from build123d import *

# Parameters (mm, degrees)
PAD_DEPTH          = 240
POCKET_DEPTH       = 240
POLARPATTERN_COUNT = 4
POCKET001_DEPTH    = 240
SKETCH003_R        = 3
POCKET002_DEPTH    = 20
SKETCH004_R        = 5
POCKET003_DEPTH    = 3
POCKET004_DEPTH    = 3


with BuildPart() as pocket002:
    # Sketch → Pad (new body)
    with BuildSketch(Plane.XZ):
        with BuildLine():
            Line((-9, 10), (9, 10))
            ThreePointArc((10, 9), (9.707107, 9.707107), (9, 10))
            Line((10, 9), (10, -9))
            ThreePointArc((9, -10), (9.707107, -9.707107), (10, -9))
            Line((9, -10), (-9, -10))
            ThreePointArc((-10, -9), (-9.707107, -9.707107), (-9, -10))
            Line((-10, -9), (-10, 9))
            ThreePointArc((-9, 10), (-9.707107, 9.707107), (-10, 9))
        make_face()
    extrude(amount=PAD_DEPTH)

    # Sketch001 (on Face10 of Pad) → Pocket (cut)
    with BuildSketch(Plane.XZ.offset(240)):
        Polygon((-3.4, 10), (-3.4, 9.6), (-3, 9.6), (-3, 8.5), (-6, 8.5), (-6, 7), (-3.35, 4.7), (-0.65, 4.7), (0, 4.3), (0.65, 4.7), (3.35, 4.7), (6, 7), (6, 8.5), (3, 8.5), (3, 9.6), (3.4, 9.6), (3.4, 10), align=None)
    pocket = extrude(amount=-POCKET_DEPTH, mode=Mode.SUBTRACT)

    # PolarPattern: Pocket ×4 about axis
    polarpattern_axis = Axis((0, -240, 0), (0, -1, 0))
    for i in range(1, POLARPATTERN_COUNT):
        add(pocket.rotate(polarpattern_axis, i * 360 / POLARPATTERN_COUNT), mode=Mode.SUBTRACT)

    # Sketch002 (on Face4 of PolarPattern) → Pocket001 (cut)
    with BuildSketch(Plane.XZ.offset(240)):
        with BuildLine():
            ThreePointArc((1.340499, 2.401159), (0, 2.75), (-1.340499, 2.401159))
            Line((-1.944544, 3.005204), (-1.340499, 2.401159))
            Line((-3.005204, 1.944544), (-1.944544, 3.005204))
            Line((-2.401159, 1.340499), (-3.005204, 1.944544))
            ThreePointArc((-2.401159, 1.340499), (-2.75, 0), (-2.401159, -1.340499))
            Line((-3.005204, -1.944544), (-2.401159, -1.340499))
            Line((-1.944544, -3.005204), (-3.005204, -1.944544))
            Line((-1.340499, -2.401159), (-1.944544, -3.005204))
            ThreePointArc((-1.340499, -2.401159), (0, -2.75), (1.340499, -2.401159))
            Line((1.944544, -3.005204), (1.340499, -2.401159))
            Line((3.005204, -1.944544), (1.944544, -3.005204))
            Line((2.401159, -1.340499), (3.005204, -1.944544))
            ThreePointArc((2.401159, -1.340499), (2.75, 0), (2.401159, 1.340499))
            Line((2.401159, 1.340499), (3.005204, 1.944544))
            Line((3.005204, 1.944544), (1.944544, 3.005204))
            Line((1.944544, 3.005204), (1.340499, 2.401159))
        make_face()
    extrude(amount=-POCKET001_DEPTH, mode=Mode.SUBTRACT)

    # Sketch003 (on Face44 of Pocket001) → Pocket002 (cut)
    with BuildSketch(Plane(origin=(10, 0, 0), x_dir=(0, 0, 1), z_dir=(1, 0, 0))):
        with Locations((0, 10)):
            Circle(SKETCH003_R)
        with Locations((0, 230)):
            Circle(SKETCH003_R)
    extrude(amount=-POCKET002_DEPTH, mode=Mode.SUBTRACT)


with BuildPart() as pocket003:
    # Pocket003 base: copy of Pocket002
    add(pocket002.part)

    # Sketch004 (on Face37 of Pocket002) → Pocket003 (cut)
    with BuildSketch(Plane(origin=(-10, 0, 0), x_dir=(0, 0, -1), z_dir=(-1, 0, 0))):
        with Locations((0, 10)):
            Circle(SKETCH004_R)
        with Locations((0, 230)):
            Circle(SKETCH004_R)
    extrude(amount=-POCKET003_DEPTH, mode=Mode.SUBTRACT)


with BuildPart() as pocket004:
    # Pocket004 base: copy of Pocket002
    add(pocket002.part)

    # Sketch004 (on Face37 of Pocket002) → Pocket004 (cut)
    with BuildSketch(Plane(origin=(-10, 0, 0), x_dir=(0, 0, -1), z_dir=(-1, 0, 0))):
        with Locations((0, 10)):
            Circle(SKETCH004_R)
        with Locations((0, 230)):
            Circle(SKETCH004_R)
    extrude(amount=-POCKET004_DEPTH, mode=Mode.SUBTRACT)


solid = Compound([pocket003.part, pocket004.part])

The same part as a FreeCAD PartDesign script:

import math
import FreeCAD as App
import Part
import Sketcher
from FreeCAD import Vector
Q = App.Units.Quantity

doc = App.newDocument("Part")
params = doc.addObject("Spreadsheet::Sheet", "Params")
for row, (alias, value) in enumerate([
    ("sketch1_radius", "0.999999 mm"),
    ("sketch1_width", "18 mm"),
    ("pad1_length", "240 mm"),
    ("sketch2_width", "3 mm"),
    ("sketch2_width2", "0.4 mm"),
    ("sketch2_width3", "2.7 mm"),
    ("sketch2_width4", "6.8 mm"),
    ("sketch2_height", "1.1 mm"),
    ("pocket1_length", "240 mm"),
    ("sketch3_length", "1.5 mm"),
    ("pocket2_length", "240 mm"),
    ("sketch4_diameter", "6 mm"),
    ("pocket3_length", "20 mm"),
    ("sketch5_diameter", "10 mm"),
    ("pocket4_length", "3 mm"),
    ("sketch6_diameter", "10 mm"),
    ("pocket5_length", "3 mm"),
], start=1):
    params.set(f"A{row}", alias)
    params.set(f"B{row}", "=" + value)
    params.setAlias(f"B{row}", alias)

body = doc.addObject("PartDesign::Body", "Body")

sketch1 = body.newObject("Sketcher::SketchObject", "Sketch")
sketch1.AttachmentSupport = (doc.getObject("XZ_Plane"), [""])
sketch1.MapMode = "FlatFace"
sketch1.addGeometry([
    Part.LineSegment(Vector(9, 10, 0), Vector(-9, 10, 0)),
    Part.ArcOfCircle(Part.Circle(Vector(-9.000001, 9.000001, 0), Vector(0, 0, 1), 0.999999), math.radians(89.999957), math.radians(180.000043)),
    Part.LineSegment(Vector(-10, 9, 0), Vector(-10, -9, 0)),
    Part.ArcOfCircle(Part.Circle(Vector(-9.000001, -9.000001, 0), Vector(0, 0, 1), 0.999999), math.radians(179.999957), math.radians(270.000043)),
    Part.LineSegment(Vector(-9, -10, 0), Vector(9, -10, 0)),
    Part.ArcOfCircle(Part.Circle(Vector(9.000001, -9.000001, 0), Vector(0, 0, 1), 0.999999), math.radians(-90.000043), math.radians(0.000043)),
    Part.LineSegment(Vector(10, -9, 0), Vector(10, 9, 0)),
    Part.ArcOfCircle(Part.Circle(Vector(9.000001, 9.000001, 0), Vector(0, 0, 1), 0.999999), math.radians(-0.000043), math.radians(90.000043)),
], False)
sketch1.addConstraint([
    Sketcher.Constraint("Tangent", 0, 2, 1, 1),
    Sketcher.Constraint("Tangent", 1, 2, 2, 1),
    Sketcher.Constraint("Tangent", 2, 2, 3, 1),
    Sketcher.Constraint("Tangent", 3, 2, 4, 1),
    Sketcher.Constraint("Tangent", 4, 2, 5, 1),
    Sketcher.Constraint("Tangent", 5, 2, 6, 1),
    Sketcher.Constraint("Tangent", 6, 2, 7, 1),
    Sketcher.Constraint("Tangent", 7, 2, 0, 1),
    Sketcher.Constraint("Horizontal", 0),
    Sketcher.Constraint("Vertical", 2),
    Sketcher.Constraint("Horizontal", 4),
    Sketcher.Constraint("Vertical", 6),
    Sketcher.Constraint("Equal", 1, 3),
    Sketcher.Constraint("Equal", 3, 5),
    Sketcher.Constraint("Equal", 5, 7),
    Sketcher.Constraint("Symmetric", 1, 3, 5, 3, -1, 1),
    Sketcher.Constraint("Equal", 4, 2),
    Sketcher.Constraint("Radius", 1, Q("0.999999 mm")),
    Sketcher.Constraint("DistanceX", 0, 2, 0, 1, Q("18 mm")),
])
sketch1.setExpression("Constraints[17]", "Params.sketch1_radius")
sketch1.setExpression("Constraints[18]", "Params.sketch1_width")
pad1 = body.newObject("PartDesign::Pad", "Pad")
pad1.Profile = sketch1
pad1.setExpression("Length", "Params.pad1_length")

sketch2 = body.newObject("Sketcher::SketchObject", "Sketch001")
sketch2.AttachmentSupport = (doc.getObject("XZ_Plane"), [""])
sketch2.MapMode = "FlatFace"
sketch2.AttachmentOffset = App.Placement(Vector(0, 0, 240), App.Rotation())
sketch2.addGeometry([
    Part.LineSegment(Vector(-3.4, 10, 0), Vector(-3.4, 9.6, 0)),
    Part.LineSegment(Vector(-3.4, 9.6, 0), Vector(-3, 9.6, 0)),
    Part.LineSegment(Vector(-3, 9.6, 0), Vector(-3, 8.5, 0)),
    Part.LineSegment(Vector(-3, 8.5, 0), Vector(-6, 8.5, 0)),
    Part.LineSegment(Vector(-6, 8.5, 0), Vector(-6, 7, 0)),
    Part.LineSegment(Vector(-6, 7, 0), Vector(-3.35, 4.7, 0)),
    Part.LineSegment(Vector(-3.35, 4.7, 0), Vector(-0.65, 4.7, 0)),
    Part.LineSegment(Vector(-0.65, 4.7, 0), Vector(0, 4.3, 0)),
    Part.LineSegment(Vector(0, 4.3, 0), Vector(0.65, 4.7, 0)),
    Part.LineSegment(Vector(0.65, 4.7, 0), Vector(3.35, 4.7, 0)),
    Part.LineSegment(Vector(3.35, 4.7, 0), Vector(6, 7, 0)),
    Part.LineSegment(Vector(6, 7, 0), Vector(6, 8.5, 0)),
    Part.LineSegment(Vector(6, 8.5, 0), Vector(3, 8.5, 0)),
    Part.LineSegment(Vector(3, 8.5, 0), Vector(3, 9.6, 0)),
    Part.LineSegment(Vector(3, 9.6, 0), Vector(3.4, 9.6, 0)),
    Part.LineSegment(Vector(3.4, 9.6, 0), Vector(3.4, 10, 0)),
    Part.LineSegment(Vector(3.4, 10, 0), Vector(-3.4, 10, 0)),
], False)
sketch2.addConstraint([
    Sketcher.Constraint("Coincident", 0, 2, 1, 1),
    Sketcher.Constraint("Coincident", 1, 2, 2, 1),
    Sketcher.Constraint("Coincident", 2, 2, 3, 1),
    Sketcher.Constraint("Coincident", 3, 2, 4, 1),
    Sketcher.Constraint("Coincident", 4, 2, 5, 1),
    Sketcher.Constraint("Coincident", 5, 2, 6, 1),
    Sketcher.Constraint("Coincident", 6, 2, 7, 1),
    Sketcher.Constraint("Coincident", 7, 2, 8, 1),
    Sketcher.Constraint("Coincident", 8, 2, 9, 1),
    Sketcher.Constraint("Coincident", 9, 2, 10, 1),
    Sketcher.Constraint("Coincident", 10, 2, 11, 1),
    Sketcher.Constraint("Coincident", 11, 2, 12, 1),
    Sketcher.Constraint("Coincident", 12, 2, 13, 1),
    Sketcher.Constraint("Coincident", 13, 2, 14, 1),
    Sketcher.Constraint("Coincident", 14, 2, 15, 1),
    Sketcher.Constraint("Coincident", 15, 2, 16, 1),
    Sketcher.Constraint("Coincident", 16, 2, 0, 1),
    Sketcher.Constraint("Vertical", 0),
    Sketcher.Constraint("Horizontal", 1),
    Sketcher.Constraint("Vertical", 2),
    Sketcher.Constraint("Horizontal", 3),
    Sketcher.Constraint("Vertical", 4),
    Sketcher.Constraint("Horizontal", 6),
    Sketcher.Constraint("Horizontal", 9),
    Sketcher.Constraint("Vertical", 11),
    Sketcher.Constraint("Horizontal", 12),
    Sketcher.Constraint("Vertical", 13),
    Sketcher.Constraint("Horizontal", 14),
    Sketcher.Constraint("Vertical", 15),
    Sketcher.Constraint("Horizontal", 16),
    Sketcher.Constraint("Symmetric", 6, 2, 8, 2, -2),
    Sketcher.Constraint("Symmetric", 4, 2, 10, 2, -2),
    Sketcher.Constraint("Symmetric", 2, 2, 12, 2, -2),
    Sketcher.Constraint("Symmetric", 0, 2, 14, 2, -2),
    Sketcher.Constraint("PointOnObject", 7, 2, -2),
    Sketcher.Constraint("Equal", 6, 9),
    Sketcher.Constraint("Equal", 14, 0),
    Sketcher.Constraint("DistanceX", 3, 2, 3, 1, Q("3 mm")),
    Sketcher.Constraint("DistanceX", 1, 1, 1, 2, Q("0.4 mm")),
    Sketcher.Constraint("DistanceX", 6, 1, 6, 2, Q("2.7 mm")),
    Sketcher.Constraint("DistanceX", 16, 2, 16, 1, Q("6.8 mm")),
    Sketcher.Constraint("DistanceY", 2, 2, 2, 1, Q("1.1 mm")),
    Sketcher.Constraint("DistanceY", 4, 2, 4, 1, Q("1.5 mm")),
    Sketcher.Constraint("DistanceY", -1, 1, 4, 2, Q("7 mm")),
    Sketcher.Constraint("DistanceX", 5, 2, 8, 2, Q("4 mm")),
    Sketcher.Constraint("DistanceY", -1, 1, 5, 2, Q("4.7 mm")),
    Sketcher.Constraint("DistanceY", -1, 1, 7, 2, Q("4.3 mm")),
])
sketch2.setExpression("Constraints[37]", "Params.sketch2_width")
sketch2.setExpression("Constraints[38]", "Params.sketch2_width2")
sketch2.setExpression("Constraints[39]", "Params.sketch2_width3")
sketch2.setExpression("Constraints[40]", "Params.sketch2_width4")
sketch2.setExpression("Constraints[41]", "Params.sketch2_height")
pocket1 = body.newObject("PartDesign::Pocket", "Pocket")
pocket1.Profile = sketch2
pocket1.setExpression("Length", "Params.pocket1_length")
doc.recompute()

polarpattern = body.newObject("PartDesign::PolarPattern", "PolarPattern")
polarpattern.Originals = [pocket1]
polarpattern.Axis = (doc.getObject("Y_Axis"), [""])
polarpattern.Angle = 360
polarpattern.Occurrences = 4
body.Tip = polarpattern

sketch3 = body.newObject("Sketcher::SketchObject", "Sketch002")
sketch3.AttachmentSupport = (doc.getObject("XZ_Plane"), [""])
sketch3.MapMode = "FlatFace"
sketch3.AttachmentOffset = App.Placement(Vector(0, 0, 240), App.Rotation())
sketch3.addGeometry([
    Part.ArcOfCircle(Part.Circle(Vector(0, -0.000003, 0), Vector(0, 0, 1), 2.750003), math.radians(60.826646), math.radians(119.173354)),
    Part.LineSegment(Vector(-1.340499, 2.401159, 0), Vector(-1.944544, 3.005204, 0)),
    Part.LineSegment(Vector(-1.944544, 3.005204, 0), Vector(-3.005204, 1.944544, 0)),
    Part.LineSegment(Vector(-3.005204, 1.944544, 0), Vector(-2.401159, 1.340499, 0)),
    Part.ArcOfCircle(Part.Circle(Vector(0.000003, 0, 0), Vector(0, 0, 1), 2.750003), math.radians(150.826646), math.radians(209.173354)),
    Part.LineSegment(Vector(-2.401159, -1.340499, 0), Vector(-3.005204, -1.944544, 0)),
    Part.LineSegment(Vector(-3.005204, -1.944544, 0), Vector(-1.944544, -3.005204, 0)),
    Part.LineSegment(Vector(-1.944544, -3.005204, 0), Vector(-1.340499, -2.401159, 0)),
    Part.ArcOfCircle(Part.Circle(Vector(0, 0.000003, 0), Vector(0, 0, 1), 2.750003), math.radians(-119.173354), math.radians(-60.826646)),
    Part.LineSegment(Vector(1.340499, -2.401159, 0), Vector(1.944544, -3.005204, 0)),
    Part.LineSegment(Vector(1.944544, -3.005204, 0), Vector(3.005204, -1.944544, 0)),
    Part.LineSegment(Vector(3.005204, -1.944544, 0), Vector(2.401159, -1.340499, 0)),
    Part.ArcOfCircle(Part.Circle(Vector(-0.000003, 0, 0), Vector(0, 0, 1), 2.750003), math.radians(-29.173354), math.radians(29.173354)),
    Part.LineSegment(Vector(2.401159, 1.340499, 0), Vector(3.005204, 1.944544, 0)),
    Part.LineSegment(Vector(3.005204, 1.944544, 0), Vector(1.944544, 3.005204, 0)),
    Part.LineSegment(Vector(1.944544, 3.005204, 0), Vector(1.340499, 2.401159, 0)),
], False)
sketch3.addConstraint([
    Sketcher.Constraint("Coincident", 0, 2, 1, 1),
    Sketcher.Constraint("Coincident", 1, 2, 2, 1),
    Sketcher.Constraint("Coincident", 2, 2, 3, 1),
    Sketcher.Constraint("Coincident", 3, 2, 4, 1),
    Sketcher.Constraint("Coincident", 4, 2, 5, 1),
    Sketcher.Constraint("Coincident", 5, 2, 6, 1),
    Sketcher.Constraint("Coincident", 6, 2, 7, 1),
    Sketcher.Constraint("Coincident", 7, 2, 8, 1),
    Sketcher.Constraint("Coincident", 8, 2, 9, 1),
    Sketcher.Constraint("Coincident", 9, 2, 10, 1),
    Sketcher.Constraint("Coincident", 10, 2, 11, 1),
    Sketcher.Constraint("Coincident", 11, 2, 12, 1),
    Sketcher.Constraint("Coincident", 12, 2, 13, 1),
    Sketcher.Constraint("Coincident", 13, 2, 14, 1),
    Sketcher.Constraint("Coincident", 14, 2, 15, 1),
    Sketcher.Constraint("Coincident", 15, 2, 0, 1),
    Sketcher.Constraint("Coincident", 0, 3, -1, 1),
    Sketcher.Constraint("Coincident", 4, 3, -1, 1),
    Sketcher.Constraint("Coincident", 8, 3, -1, 1),
    Sketcher.Constraint("Coincident", 12, 3, -1, 1),
    Sketcher.Constraint("Equal", 0, 4),
    Sketcher.Constraint("Equal", 4, 8),
    Sketcher.Constraint("Equal", 8, 12),
    Sketcher.Constraint("Symmetric", 1, 2, 9, 2, -1, 1),
    Sketcher.Constraint("Symmetric", 2, 2, 10, 2, -1, 1),
    Sketcher.Constraint("Symmetric", 5, 2, 13, 2, -1, 1),
    Sketcher.Constraint("Symmetric", 6, 2, 14, 2, -1, 1),
    Sketcher.Constraint("Symmetric", 6, 2, 9, 2, -2),
    Sketcher.Constraint("Symmetric", 5, 2, 10, 2, -2),
    Sketcher.Constraint("Perpendicular", 1, 2),
    Sketcher.Constraint("Perpendicular", 2, 3),
    Sketcher.Constraint("Perpendicular", 3, 5),
    Sketcher.Constraint("Perpendicular", 5, 6),
    Sketcher.Constraint("Perpendicular", 6, 7),
    Sketcher.Constraint("Perpendicular", 7, 9),
    Sketcher.Constraint("Perpendicular", 10, 11),
    Sketcher.Constraint("Perpendicular", 11, 13),
    Sketcher.Constraint("Perpendicular", 14, 15),
    Sketcher.Constraint("Equal", 1, 3),
    Sketcher.Constraint("Distance", 2, Q("1.5 mm")),
    Sketcher.Constraint("Radius", 0, Q("2.750003 mm")),
    Sketcher.Constraint("DistanceY", 8, 3, 1, 2, Q("3.005201 mm")),
])
sketch3.setExpression("Constraints[39]", "Params.sketch3_length")
pocket2 = body.newObject("PartDesign::Pocket", "Pocket001")
pocket2.Profile = sketch3
pocket2.setExpression("Length", "Params.pocket2_length")

sketch4 = body.newObject("Sketcher::SketchObject", "Sketch003")
sketch4.AttachmentSupport = (doc.getObject("YZ_Plane"), [""])
sketch4.MapMode = "FlatFace"
sketch4.AttachmentOffset = App.Placement(Vector(0, 0, 10), App.Rotation())
sketch4.addGeometry([
    Part.Circle(Vector(-10, 0, 0), Vector(0, 0, 1), 3),
    Part.Circle(Vector(-230, 0, 0), Vector(0, 0, 1), 3),
], False)
sketch4.addConstraint([
    Sketcher.Constraint("Equal", 0, 1),
    Sketcher.Constraint("PointOnObject", 0, 3, -1),
    Sketcher.Constraint("PointOnObject", 1, 3, -1),
    Sketcher.Constraint("Diameter", 0, Q("6 mm")),
    Sketcher.Constraint("DistanceX", 0, 3, -1, 1, Q("10 mm")),
    Sketcher.Constraint("DistanceX", 1, 3, -1, 1, Q("230 mm")),
])
sketch4.setExpression("Constraints[3]", "Params.sketch4_diameter")
pocket3 = body.newObject("PartDesign::Pocket", "Pocket002")
pocket3.Profile = sketch4
pocket3.setExpression("Length", "Params.pocket3_length")
body2 = doc.addObject("PartDesign::Body", "Body001")
doc.recompute()

body2.BaseFeature = body
doc.recompute()

sketch5 = body2.newObject("Sketcher::SketchObject", "Sketch004")
sketch5.AttachmentSupport = (doc.getObject("YZ_Plane001"), [""])
sketch5.MapMode = "FlatFace"
sketch5.AttachmentOffset = App.Placement(Vector(0, 0, -10), App.Rotation())
sketch5.addGeometry([
    Part.Circle(Vector(-10, 0, 0), Vector(0, 0, 1), 5),
    Part.Circle(Vector(-230, 0, 0), Vector(0, 0, 1), 5),
], False)
sketch5.addConstraint([
    Sketcher.Constraint("Equal", 0, 1),
    Sketcher.Constraint("PointOnObject", 0, 3, -1),
    Sketcher.Constraint("PointOnObject", 1, 3, -1),
    Sketcher.Constraint("Diameter", 0, Q("10 mm")),
    Sketcher.Constraint("DistanceX", 0, 3, -1, 1, Q("10 mm")),
    Sketcher.Constraint("DistanceX", 1, 3, -1, 1, Q("230 mm")),
])
sketch5.setExpression("Constraints[3]", "Params.sketch5_diameter")
pocket4 = body2.newObject("PartDesign::Pocket", "Pocket003")
pocket4.Profile = sketch5
pocket4.setExpression("Length", "Params.pocket4_length")
pocket4.Reversed = True

sketch6 = body.newObject("Sketcher::SketchObject", "Sketch005")
sketch6.AttachmentSupport = (doc.getObject("YZ_Plane"), [""])
sketch6.MapMode = "FlatFace"
sketch6.AttachmentOffset = App.Placement(Vector(0, 0, -10), App.Rotation())
sketch6.addGeometry([
    Part.Circle(Vector(-10, 0, 0), Vector(0, 0, 1), 5),
    Part.Circle(Vector(-230, 0, 0), Vector(0, 0, 1), 5),
], False)
sketch6.addConstraint([
    Sketcher.Constraint("Equal", 0, 1),
    Sketcher.Constraint("PointOnObject", 0, 3, -1),
    Sketcher.Constraint("PointOnObject", 1, 3, -1),
    Sketcher.Constraint("Diameter", 0, Q("10 mm")),
    Sketcher.Constraint("DistanceX", 0, 3, -1, 1, Q("10 mm")),
    Sketcher.Constraint("DistanceX", 1, 3, -1, 1, Q("230 mm")),
])
sketch6.setExpression("Constraints[3]", "Params.sketch6_diameter")
pocket5 = body.newObject("PartDesign::Pocket", "Pocket004")
pocket5.Profile = sketch6
pocket5.setExpression("Length", "Params.pocket5_length")
pocket5.Reversed = True

doc.recompute()
